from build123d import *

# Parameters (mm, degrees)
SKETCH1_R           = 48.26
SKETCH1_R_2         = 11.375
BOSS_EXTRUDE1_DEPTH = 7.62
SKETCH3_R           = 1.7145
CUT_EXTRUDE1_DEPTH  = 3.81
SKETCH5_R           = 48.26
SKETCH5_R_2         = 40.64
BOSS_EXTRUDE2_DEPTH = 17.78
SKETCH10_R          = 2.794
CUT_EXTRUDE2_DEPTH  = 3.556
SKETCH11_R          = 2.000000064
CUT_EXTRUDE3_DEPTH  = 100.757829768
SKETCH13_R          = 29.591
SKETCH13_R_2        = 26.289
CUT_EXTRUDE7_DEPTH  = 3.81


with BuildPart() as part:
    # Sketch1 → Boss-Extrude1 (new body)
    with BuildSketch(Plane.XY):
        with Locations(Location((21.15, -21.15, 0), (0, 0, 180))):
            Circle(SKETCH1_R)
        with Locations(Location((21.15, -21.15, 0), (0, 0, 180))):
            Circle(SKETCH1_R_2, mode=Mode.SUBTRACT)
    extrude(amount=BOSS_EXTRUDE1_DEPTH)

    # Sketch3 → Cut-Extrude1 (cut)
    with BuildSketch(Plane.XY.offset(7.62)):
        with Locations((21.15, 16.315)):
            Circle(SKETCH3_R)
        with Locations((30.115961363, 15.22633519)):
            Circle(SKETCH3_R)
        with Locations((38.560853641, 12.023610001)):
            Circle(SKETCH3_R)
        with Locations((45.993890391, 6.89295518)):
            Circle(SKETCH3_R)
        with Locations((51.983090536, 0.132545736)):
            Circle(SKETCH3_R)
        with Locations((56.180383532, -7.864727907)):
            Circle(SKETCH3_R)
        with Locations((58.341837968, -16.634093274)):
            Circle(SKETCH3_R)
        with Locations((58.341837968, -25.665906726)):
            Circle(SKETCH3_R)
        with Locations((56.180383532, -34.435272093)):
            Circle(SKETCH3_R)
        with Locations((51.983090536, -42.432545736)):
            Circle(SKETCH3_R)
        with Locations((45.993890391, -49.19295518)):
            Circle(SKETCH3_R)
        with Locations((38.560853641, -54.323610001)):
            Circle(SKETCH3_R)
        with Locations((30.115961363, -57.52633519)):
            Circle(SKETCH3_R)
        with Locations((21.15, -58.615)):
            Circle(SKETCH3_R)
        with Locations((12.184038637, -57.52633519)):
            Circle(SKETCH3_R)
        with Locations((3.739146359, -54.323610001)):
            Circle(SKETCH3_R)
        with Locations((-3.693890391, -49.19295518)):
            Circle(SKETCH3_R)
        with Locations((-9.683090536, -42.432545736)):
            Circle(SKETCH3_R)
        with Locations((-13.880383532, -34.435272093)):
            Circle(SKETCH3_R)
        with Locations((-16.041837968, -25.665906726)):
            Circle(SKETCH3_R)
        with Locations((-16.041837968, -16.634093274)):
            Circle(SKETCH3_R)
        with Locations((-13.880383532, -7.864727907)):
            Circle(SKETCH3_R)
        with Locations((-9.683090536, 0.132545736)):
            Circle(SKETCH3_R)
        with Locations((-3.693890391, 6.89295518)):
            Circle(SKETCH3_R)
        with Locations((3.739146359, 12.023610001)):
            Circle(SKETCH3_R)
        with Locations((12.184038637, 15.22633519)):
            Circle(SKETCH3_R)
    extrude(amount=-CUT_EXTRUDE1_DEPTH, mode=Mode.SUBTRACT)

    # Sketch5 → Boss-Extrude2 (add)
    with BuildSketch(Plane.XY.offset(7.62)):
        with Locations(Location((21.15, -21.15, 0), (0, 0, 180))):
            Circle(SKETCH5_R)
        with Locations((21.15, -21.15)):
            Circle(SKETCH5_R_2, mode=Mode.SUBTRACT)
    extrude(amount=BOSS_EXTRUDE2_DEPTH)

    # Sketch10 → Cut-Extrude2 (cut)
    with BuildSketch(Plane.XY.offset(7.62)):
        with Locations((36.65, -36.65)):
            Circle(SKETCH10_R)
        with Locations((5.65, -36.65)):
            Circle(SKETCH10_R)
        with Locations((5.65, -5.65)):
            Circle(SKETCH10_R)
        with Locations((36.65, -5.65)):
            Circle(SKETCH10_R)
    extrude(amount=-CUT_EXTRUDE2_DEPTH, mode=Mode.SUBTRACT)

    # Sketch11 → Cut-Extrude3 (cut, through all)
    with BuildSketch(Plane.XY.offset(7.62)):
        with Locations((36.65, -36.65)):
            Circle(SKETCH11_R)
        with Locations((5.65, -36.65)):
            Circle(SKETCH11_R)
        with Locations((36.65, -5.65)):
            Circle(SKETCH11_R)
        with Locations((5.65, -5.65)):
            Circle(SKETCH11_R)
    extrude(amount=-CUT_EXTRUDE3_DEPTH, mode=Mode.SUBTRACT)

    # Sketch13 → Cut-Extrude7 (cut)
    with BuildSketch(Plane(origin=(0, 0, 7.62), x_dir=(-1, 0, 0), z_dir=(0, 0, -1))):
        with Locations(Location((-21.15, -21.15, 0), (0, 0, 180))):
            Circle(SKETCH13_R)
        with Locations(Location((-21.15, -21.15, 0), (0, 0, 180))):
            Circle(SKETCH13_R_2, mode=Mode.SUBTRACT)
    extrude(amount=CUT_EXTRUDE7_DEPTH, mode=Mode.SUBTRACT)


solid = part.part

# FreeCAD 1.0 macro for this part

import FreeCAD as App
import Part
import Sketcher
Q = App.Units.Quantity

doc = App.newDocument("Part")
params = doc.addObject("Spreadsheet::Sheet", "Params")
for row, (alias, value) in enumerate([
    ("sketch1_diameter", "3.8 in"),
    ("pad1_length", "0.3 in"),
    ("sketch2_diameter", "0.135 in"),
    ("pocket1_length", "0.15 in"),
    ("sketch3_diameter", "3.8 in"),
    ("sketch3_diameter2", "3.2 in"),
    ("pad2_length", "0.7 in"),
    ("sketch4_diameter", "0.22 in"),
    ("pocket2_length", "0.14 in"),
    ("sketch6_diameter", "2.33 in"),
    ("sketch6_diameter2", "2.07 in"),
    ("pocket4_length", "0.15 in"),
], start=1):
    params.set(f"A{row}", alias)
    params.set(f"B{row}", "=" + value)
    params.setAlias(f"B{row}", alias)

body = doc.addObject("PartDesign::Body", "Body")

# Sketch on XY plane
sketch1 = doc.addObject("Sketcher::SketchObject", "Sketch")
body.addObject(sketch1)
sketch1.AttachmentSupport = (doc.XY_Plane, [""])
sketch1.MapMode = "FlatFace"
sketch1.addGeometry([
    Part.Circle(App.Vector(21, -21, 0), App.Vector(0, 0, 1), 48),
    Part.Circle(App.Vector(21, -21, 0), App.Vector(0, 0, 1), 11),
], False)
sketch1.addConstraint([
    Sketcher.Constraint("Coincident", 1, 3, 0, 3),
    Sketcher.Constraint("Diameter", 0, Q("3.8 in")),
    Sketcher.Constraint("Diameter", 1, 22.75),
    Sketcher.Constraint("DistanceX", -1, 1, 0, 3, 21.15),
    Sketcher.Constraint("DistanceY", 0, 3, -1, 1, 21.15),
])
sketch1.setExpression("Constraints[1]", "Params.sketch1_diameter")
pad1 = doc.addObject("PartDesign::Pad", "Pad")
body.addObject(pad1)
pad1.Profile = sketch1
pad1.setExpression("Length", "Params.pad1_length")

# Sketch on XY plane
sketch2 = doc.addObject("Sketcher::SketchObject", "Sketch001")
body.addObject(sketch2)
sketch2.AttachmentSupport = (doc.XY_Plane, [""])
sketch2.MapMode = "FlatFace"
sketch2.AttachmentOffset = App.Placement(App.Vector(0, 0, 0.3 * 25.4), App.Rotation())
sketch2.addGeometry([
    Part.Circle(App.Vector(21.1, 16.3, 0), App.Vector(0, 0, 1), 1.7),  # 0
    Part.Circle(App.Vector(30.1, 15.2, 0), App.Vector(0, 0, 1), 1.7),  # 1
    Part.Circle(App.Vector(38.6, 12, 0), App.Vector(0, 0, 1), 1.7),  # 2
    Part.Circle(App.Vector(46, 6.9, 0), App.Vector(0, 0, 1), 1.7),  # 3
    Part.Circle(App.Vector(52, 0.1, 0), App.Vector(0, 0, 1), 1.7),  # 4
    Part.Circle(App.Vector(56.2, -7.9, 0), App.Vector(0, 0, 1), 1.7),  # 5
    Part.Circle(App.Vector(58.3, -16.6, 0), App.Vector(0, 0, 1), 1.7),  # 6
    Part.Circle(App.Vector(58.3, -25.7, 0), App.Vector(0, 0, 1), 1.7),  # 7
    Part.Circle(App.Vector(56.2, -34.4, 0), App.Vector(0, 0, 1), 1.7),  # 8
    Part.Circle(App.Vector(52, -42.4, 0), App.Vector(0, 0, 1), 1.7),  # 9
    Part.Circle(App.Vector(46, -49.2, 0), App.Vector(0, 0, 1), 1.7),  # 10
    Part.Circle(App.Vector(38.6, -54.3, 0), App.Vector(0, 0, 1), 1.7),  # 11
    Part.Circle(App.Vector(30.1, -57.5, 0), App.Vector(0, 0, 1), 1.7),  # 12
    Part.Circle(App.Vector(21.1, -58.6, 0), App.Vector(0, 0, 1), 1.7),  # 13
    Part.Circle(App.Vector(12.2, -57.5, 0), App.Vector(0, 0, 1), 1.7),  # 14
    Part.Circle(App.Vector(3.7, -54.3, 0), App.Vector(0, 0, 1), 1.7),  # 15
    Part.Circle(App.Vector(-3.7, -49.2, 0), App.Vector(0, 0, 1), 1.7),  # 16
    Part.Circle(App.Vector(-9.7, -42.4, 0), App.Vector(0, 0, 1), 1.7),  # 17
    Part.Circle(App.Vector(-13.9, -34.4, 0), App.Vector(0, 0, 1), 1.7),  # 18
    Part.Circle(App.Vector(-16, -25.7, 0), App.Vector(0, 0, 1), 1.7),  # 19
    Part.Circle(App.Vector(-16, -16.6, 0), App.Vector(0, 0, 1), 1.7),  # 20
    Part.Circle(App.Vector(-13.9, -7.9, 0), App.Vector(0, 0, 1), 1.7),  # 21
    Part.Circle(App.Vector(-9.7, 0.1, 0), App.Vector(0, 0, 1), 1.7),  # 22
    Part.Circle(App.Vector(-3.7, 6.9, 0), App.Vector(0, 0, 1), 1.7),  # 23
    Part.Circle(App.Vector(3.7, 12, 0), App.Vector(0, 0, 1), 1.7),  # 24
    Part.Circle(App.Vector(12.2, 15.2, 0), App.Vector(0, 0, 1), 1.7),  # 25
], False)
sketch2.addConstraint([
    Sketcher.Constraint("Equal", 0, 1),
    Sketcher.Constraint("Equal", 1, 2),
    Sketcher.Constraint("Equal", 2, 3),
    Sketcher.Constraint("Equal", 3, 4),
    Sketcher.Constraint("Equal", 4, 5),
    Sketcher.Constraint("Equal", 5, 6),
    Sketcher.Constraint("Equal", 6, 7),
    Sketcher.Constraint("Equal", 7, 8),
    Sketcher.Constraint("Equal", 8, 9),
    Sketcher.Constraint("Equal", 9, 10),
    Sketcher.Constraint("Equal", 10, 11),
    Sketcher.Constraint("Equal", 11, 12),
    Sketcher.Constraint("Equal", 12, 13),
    Sketcher.Constraint("Equal", 13, 14),
    Sketcher.Constraint("Equal", 14, 15),
    Sketcher.Constraint("Equal", 15, 16),
    Sketcher.Constraint("Equal", 16, 17),
    Sketcher.Constraint("Equal", 17, 18),
    Sketcher.Constraint("Equal", 18, 19),
    Sketcher.Constraint("Equal", 19, 20),
    Sketcher.Constraint("Equal", 20, 21),
    Sketcher.Constraint("Equal", 21, 22),
    Sketcher.Constraint("Equal", 22, 23),
    Sketcher.Constraint("Equal", 23, 24),
    Sketcher.Constraint("Equal", 24, 25),
    Sketcher.Constraint("Horizontal", 12, 3, 14, 3),
    Sketcher.Constraint("Horizontal", 11, 3, 15, 3),
    Sketcher.Constraint("Horizontal", 10, 3, 16, 3),
    Sketcher.Constraint("Horizontal", 9, 3, 17, 3),
    Sketcher.Constraint("Horizontal", 8, 3, 18, 3),
    Sketcher.Constraint("Horizontal", 7, 3, 19, 3),
    Sketcher.Constraint("Horizontal", 6, 3, 20, 3),
    Sketcher.Constraint("Horizontal", 5, 3, 21, 3),
    Sketcher.Constraint("Horizontal", 4, 3, 22, 3),
    Sketcher.Constraint("Horizontal", 3, 3, 23, 3),
    Sketcher.Constraint("Horizontal", 2, 3, 24, 3),
    Sketcher.Constraint("Horizontal", 1, 3, 25, 3),
    Sketcher.Constraint("Vertical", 6, 3, 7, 3),
    Sketcher.Constraint("Vertical", 5, 3, 8, 3),
    Sketcher.Constraint("Vertical", 4, 3, 9, 3),
    Sketcher.Constraint("Vertical", 3, 3, 10, 3),
    Sketcher.Constraint("Vertical", 2, 3, 11, 3),
    Sketcher.Constraint("Vertical", 1, 3, 12, 3),
    Sketcher.Constraint("Vertical", 0, 3, 13, 3),
    Sketcher.Constraint("Vertical", 19, 3, 20, 3),
    Sketcher.Constraint("Vertical", 18, 3, 21, 3),
    Sketcher.Constraint("Vertical", 17, 3, 22, 3),
    Sketcher.Constraint("Vertical", 16, 3, 23, 3),
    Sketcher.Constraint("Vertical", 15, 3, 24, 3),
    Sketcher.Constraint("Vertical", 14, 3, 25, 3),
    Sketcher.Constraint("Diameter", 0, Q("0.135 in")),
    Sketcher.Constraint("DistanceX", -1, 1, 0, 3, 21.15),
    Sketcher.Constraint("DistanceY", -1, 1, 0, 3, 16.315),
    Sketcher.Constraint("DistanceY", 13, 3, -1, 1, 58.615),
    Sketcher.Constraint("DistanceX", 3, 3, 4, 3, 5.9892),
    Sketcher.Constraint("DistanceX", 17, 3, 16, 3, 5.9892),
    Sketcher.Constraint("DistanceX", -1, 1, 1, 3, 30.115961),
    Sketcher.Constraint("DistanceY", -1, 1, 2, 3, 12.02361),
    Sketcher.Constraint("DistanceX", -1, 1, 3, 3, 45.99389),
    Sketcher.Constraint("DistanceY", 11, 3, -1, 1, 54.32361),
    Sketcher.Constraint("DistanceX", -1, 1, 14, 3, 12.184039),
    Sketcher.Constraint("DistanceX", 16, 3, -1, 1, 3.69389),
    Sketcher.Constraint("DistanceY", 3, 3, 1, 3, 8.33338),
    Sketcher.Constraint("DistanceY", 4, 3, 3, 3, 6.760409),
    Sketcher.Constraint("DistanceX", 2, 3, 5, 3, 17.61953),
    Sketcher.Constraint("DistanceY", 6, 3, 4, 3, 16.766639),
    Sketcher.Constraint("DistanceY", 7, 3, 5, 3, 17.801179),
    Sketcher.Constraint("DistanceY", 7, 3, 3, 3, 32.558862),
    Sketcher.Constraint("DistanceY", 8, 3, 6, 3, 17.801179),
    Sketcher.Constraint("DistanceY", 9, 3, 7, 3, 16.766639),
    Sketcher.Constraint("DistanceY", 10, 3, 9, 3, 6.760409),
    Sketcher.Constraint("DistanceY", 12, 3, 10, 3, 8.33338),
    Sketcher.Constraint("DistanceX", 18, 3, 15, 3, 17.61953),
    Sketcher.Constraint("DistanceY", -1, 1, 1, 3, 15.226335),
    Sketcher.Constraint("DistanceX", -1, 1, 2, 3, 38.560854),
    Sketcher.Constraint("DistanceX", -1, 1, 6, 3, 58.341838),
    Sketcher.Constraint("DistanceX", -1, 1, 15, 3, 3.739146),
    Sketcher.Constraint("DistanceX", 19, 3, -1, 1, 16.041838),
])
sketch2.setExpression("Constraints[50]", "Params.sketch2_diameter")
pocket1 = doc.addObject("PartDesign::Pocket", "Pocket")
body.addObject(pocket1)
pocket1.Profile = sketch2
pocket1.setExpression("Length", "Params.pocket1_length")

# Sketch on XY plane
sketch3 = doc.addObject("Sketcher::SketchObject", "Sketch002")
body.addObject(sketch3)
sketch3.AttachmentSupport = (doc.XY_Plane, [""])
sketch3.MapMode = "FlatFace"
sketch3.AttachmentOffset = App.Placement(App.Vector(0, 0, 0.3 * 25.4), App.Rotation())
sketch3.addGeometry([
    Part.Circle(App.Vector(21, -21, 0), App.Vector(0, 0, 1), 48),
    Part.Circle(App.Vector(21, -21, 0), App.Vector(0, 0, 1), 41),
], False)
sketch3.addConstraint([
    Sketcher.Constraint("Coincident", 1, 3, 0, 3),
    Sketcher.Constraint("Diameter", 0, Q("3.8 in")),
    Sketcher.Constraint("Diameter", 1, Q("3.2 in")),
    Sketcher.Constraint("DistanceX", -1, 1, 0, 3, 21.15),
    Sketcher.Constraint("DistanceY", 0, 3, -1, 1, 21.15),
])
sketch3.setExpression("Constraints[1]", "Params.sketch3_diameter")
sketch3.setExpression("Constraints[2]", "Params.sketch3_diameter2")
pad2 = doc.addObject("PartDesign::Pad", "Pad001")
body.addObject(pad2)
pad2.Profile = sketch3
pad2.setExpression("Length", "Params.pad2_length")

# Sketch on XY plane
sketch4 = doc.addObject("Sketcher::SketchObject", "Sketch003")
body.addObject(sketch4)
sketch4.AttachmentSupport = (doc.XY_Plane, [""])
sketch4.MapMode = "FlatFace"
sketch4.AttachmentOffset = App.Placement(App.Vector(0, 0, 0.3 * 25.4), App.Rotation())
sketch4.addGeometry([
    Part.Circle(App.Vector(36.6, -36.6, 0), App.Vector(0, 0, 1), 2.8),
    Part.Circle(App.Vector(5.7, -36.6, 0), App.Vector(0, 0, 1), 2.8),
    Part.Circle(App.Vector(5.7, -5.7, 0), App.Vector(0, 0, 1), 2.8),
    Part.Circle(App.Vector(36.6, -5.7, 0), App.Vector(0, 0, 1), 2.8),
], False)
sketch4.addConstraint([
    Sketcher.Constraint("Equal", 0, 1),
    Sketcher.Constraint("Equal", 1, 2),
    Sketcher.Constraint("Equal", 2, 3),
    Sketcher.Constraint("Horizontal", 0, 3, 1, 3),
    Sketcher.Constraint("Horizontal", 2, 3, 3, 3),
    Sketcher.Constraint("Vertical", 1, 3, 2, 3),
    Sketcher.Constraint("Vertical", 0, 3, 3, 3),
    Sketcher.Constraint("Diameter", 0, Q("0.22 in")),
    Sketcher.Constraint("DistanceX", -1, 1, 0, 3, 36.65),
    Sketcher.Constraint("DistanceY", 0, 3, -1, 1, 36.65),
    Sketcher.Constraint("DistanceX", -1, 1, 1, 3, 5.65),
    Sketcher.Constraint("DistanceY", 2, 3, -1, 1, 5.65),
])
sketch4.setExpression("Constraints[7]", "Params.sketch4_diameter")
pocket2 = doc.addObject("PartDesign::Pocket", "Pocket001")
body.addObject(pocket2)
pocket2.Profile = sketch4
pocket2.setExpression("Length", "Params.pocket2_length")

# Sketch on XY plane
sketch5 = doc.addObject("Sketcher::SketchObject", "Sketch004")
body.addObject(sketch5)
sketch5.AttachmentSupport = (doc.XY_Plane, [""])
sketch5.MapMode = "FlatFace"
sketch5.AttachmentOffset = App.Placement(App.Vector(0, 0, 0.3 * 25.4), App.Rotation())
sketch5.addGeometry([
    Part.Circle(App.Vector(36.6, -36.6, 0), App.Vector(0, 0, 1), 2),
    Part.Circle(App.Vector(5.7, -36.6, 0), App.Vector(0, 0, 1), 2),
    Part.Circle(App.Vector(36.6, -5.7, 0), App.Vector(0, 0, 1), 2),
    Part.Circle(App.Vector(5.7, -5.7, 0), App.Vector(0, 0, 1), 2),
], False)
sketch5.addConstraint([
    Sketcher.Constraint("Equal", 0, 1),
    Sketcher.Constraint("Equal", 1, 2),
    Sketcher.Constraint("Equal", 2, 3),
    Sketcher.Constraint("Horizontal", 0, 3, 1, 3),
    Sketcher.Constraint("Horizontal", 2, 3, 3, 3),
    Sketcher.Constraint("Vertical", 0, 3, 2, 3),
    Sketcher.Constraint("Vertical", 1, 3, 3, 3),
    Sketcher.Constraint("Diameter", 0, 4.0),
    Sketcher.Constraint("DistanceX", -1, 1, 0, 3, 36.65),
    Sketcher.Constraint("DistanceY", 0, 3, -1, 1, 36.65),
    Sketcher.Constraint("DistanceX", -1, 1, 1, 3, 5.65),
    Sketcher.Constraint("DistanceY", 2, 3, -1, 1, 5.65),
])
pocket3 = doc.addObject("PartDesign::Pocket", "Pocket002")
body.addObject(pocket3)
pocket3.Profile = sketch5
pocket3.Type = "ThroughAll"

# Sketch on XY plane
sketch6 = doc.addObject("Sketcher::SketchObject", "Sketch005")
body.addObject(sketch6)
sketch6.AttachmentSupport = (doc.XY_Plane, [""])
sketch6.MapMode = "FlatFace"
sketch6.AttachmentOffset = App.Placement(App.Vector(0, 0, 0.3 * 25.4), App.Rotation())
sketch6.addGeometry([
    Part.Circle(App.Vector(21, -21, 0), App.Vector(0, 0, 1), 30),
    Part.Circle(App.Vector(21, -21, 0), App.Vector(0, 0, 1), 26),
], False)
sketch6.addConstraint([
    Sketcher.Constraint("Coincident", 1, 3, 0, 3),
    Sketcher.Constraint("Diameter", 0, Q("2.33 in")),
    Sketcher.Constraint("Diameter", 1, Q("2.07 in")),
    Sketcher.Constraint("DistanceX", -1, 1, 0, 3, 21.15),
    Sketcher.Constraint("DistanceY", 0, 3, -1, 1, 21.15),
])
sketch6.setExpression("Constraints[1]", "Params.sketch6_diameter")
sketch6.setExpression("Constraints[2]", "Params.sketch6_diameter2")
pocket4 = doc.addObject("PartDesign::Pocket", "Pocket003")
body.addObject(pocket4)
pocket4.Profile = sketch6
pocket4.setExpression("Length", "Params.pocket4_length")

doc.recompute()
